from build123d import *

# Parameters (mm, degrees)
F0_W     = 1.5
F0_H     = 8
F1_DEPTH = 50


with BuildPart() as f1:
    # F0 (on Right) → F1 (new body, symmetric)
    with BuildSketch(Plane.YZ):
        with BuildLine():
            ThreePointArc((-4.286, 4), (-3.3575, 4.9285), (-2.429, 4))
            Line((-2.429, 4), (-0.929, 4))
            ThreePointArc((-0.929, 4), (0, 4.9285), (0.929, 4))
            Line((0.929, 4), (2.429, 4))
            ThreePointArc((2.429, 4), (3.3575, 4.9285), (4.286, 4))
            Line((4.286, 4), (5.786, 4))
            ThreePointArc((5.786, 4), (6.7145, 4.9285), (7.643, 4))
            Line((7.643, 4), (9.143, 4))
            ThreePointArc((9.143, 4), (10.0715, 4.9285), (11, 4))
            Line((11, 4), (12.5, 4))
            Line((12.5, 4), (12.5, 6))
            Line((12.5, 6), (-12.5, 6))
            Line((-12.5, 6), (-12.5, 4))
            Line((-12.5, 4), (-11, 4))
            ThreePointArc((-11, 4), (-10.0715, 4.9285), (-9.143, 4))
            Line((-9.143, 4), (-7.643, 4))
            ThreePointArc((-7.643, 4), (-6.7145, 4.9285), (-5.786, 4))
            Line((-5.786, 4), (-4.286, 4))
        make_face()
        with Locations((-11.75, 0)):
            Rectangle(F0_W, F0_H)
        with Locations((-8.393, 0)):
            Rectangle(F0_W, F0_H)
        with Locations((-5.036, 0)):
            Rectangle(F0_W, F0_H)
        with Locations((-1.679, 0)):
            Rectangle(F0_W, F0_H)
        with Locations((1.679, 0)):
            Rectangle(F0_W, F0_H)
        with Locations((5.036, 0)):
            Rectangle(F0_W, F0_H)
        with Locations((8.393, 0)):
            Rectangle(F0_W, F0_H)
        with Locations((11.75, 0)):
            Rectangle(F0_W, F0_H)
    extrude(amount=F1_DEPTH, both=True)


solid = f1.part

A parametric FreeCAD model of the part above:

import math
import FreeCAD as App
import Part
import Sketcher
from FreeCAD import Vector

doc = App.newDocument("Part")
body = doc.addObject("PartDesign::Body", "Body")

sketch1 = doc.addObject("Sketcher::SketchObject", "Sketch")
body.addObject(sketch1)
sketch1.AttachmentSupport = (doc.YZ_Plane, [""])
sketch1.MapMode = "FlatFace"
sketch1.addGeometry(Part.ArcOfCircle(Part.Circle(Vector(-3.4, 4, 0), Vector(0, 0, 1), 0.9), math.radians(0), math.radians(180)), False)
sketch1.addGeometry(Part.LineSegment(Vector(-2.4, 4, 0), Vector(-2.4, -4, 0)), False)
sketch1.addGeometry(Part.LineSegment(Vector(-2.4, -4, 0), Vector(-0.9, -4, 0)), False)
sketch1.addGeometry(Part.LineSegment(Vector(-0.9, -4, 0), Vector(-0.9, 4, 0)), False)
sketch1.addGeometry(Part.ArcOfCircle(Part.Circle(Vector(0, 4, 0), Vector(0, 0, 1), 0.9), math.radians(0), math.radians(180)), False)
sketch1.addGeometry(Part.LineSegment(Vector(0.9, 4, 0), Vector(0.9, -4, 0)), False)
sketch1.addGeometry(Part.LineSegment(Vector(0.9, -4, 0), Vector(2.4, -4, 0)), False)
sketch1.addGeometry(Part.LineSegment(Vector(2.4, -4, 0), Vector(2.4, 4, 0)), False)
sketch1.addGeometry(Part.ArcOfCircle(Part.Circle(Vector(3.4, 4, 0), Vector(0, 0, 1), 0.9), math.radians(0), math.radians(180)), False)
sketch1.addGeometry(Part.LineSegment(Vector(4.3, 4, 0), Vector(4.3, -4, 0)), False)
sketch1.addGeometry(Part.LineSegment(Vector(4.3, -4, 0), Vector(5.8, -4, 0)), False)
sketch1.addGeometry(Part.LineSegment(Vector(5.8, -4, 0), Vector(5.8, 4, 0)), False)
sketch1.addGeometry(Part.ArcOfCircle(Part.Circle(Vector(6.7, 4, 0), Vector(0, 0, 1), 0.9), math.radians(0), math.radians(180)), False)
sketch1.addGeometry(Part.LineSegment(Vector(7.6, 4, 0), Vector(7.6, -4, 0)), False)
sketch1.addGeometry(Part.LineSegment(Vector(7.6, -4, 0), Vector(9.1, -4, 0)), False)
sketch1.addGeometry(Part.LineSegment(Vector(9.1, -4, 0), Vector(9.1, 4, 0)), False)
sketch1.addGeometry(Part.ArcOfCircle(Part.Circle(Vector(10.1, 4, 0), Vector(0, 0, 1), 0.9), math.radians(0), math.radians(180)), False)
sketch1.addGeometry(Part.LineSegment(Vector(11, 4, 0), Vector(11, -4, 0)), False)
sketch1.addGeometry(Part.LineSegment(Vector(11, -4, 0), Vector(12.5, -4, 0)), False)
sketch1.addGeometry(Part.LineSegment(Vector(12.5, -4, 0), Vector(12.5, 6, 0)), False)
sketch1.addGeometry(Part.LineSegment(Vector(12.5, 6, 0), Vector(-12.5, 6, 0)), False)
sketch1.addGeometry(Part.LineSegment(Vector(-12.5, 6, 0), Vector(-12.5, -4, 0)), False)
sketch1.addGeometry(Part.LineSegment(Vector(-12.5, -4, 0), Vector(-11, -4, 0)), False)
sketch1.addGeometry(Part.LineSegment(Vector(-11, -4, 0), Vector(-11, 4, 0)), False)
sketch1.addGeometry(Part.ArcOfCircle(Part.Circle(Vector(-10.1, 4, 0), Vector(0, 0, 1), 0.9), math.radians(0), math.radians(180)), False)
sketch1.addGeometry(Part.LineSegment(Vector(-9.1, 4, 0), Vector(-9.1, -4, 0)), False)
sketch1.addGeometry(Part.LineSegment(Vector(-9.1, -4, 0), Vector(-7.6, -4, 0)), False)
sketch1.addGeometry(Part.LineSegment(Vector(-7.6, -4, 0), Vector(-7.6, 4, 0)), False)
sketch1.addGeometry(Part.ArcOfCircle(Part.Circle(Vector(-6.7, 4, 0), Vector(0, 0, 1), 0.9), math.radians(0), math.radians(180)), False)
sketch1.addGeometry(Part.LineSegment(Vector(-5.8, 4, 0), Vector(-5.8, -4, 0)), False)
sketch1.addGeometry(Part.LineSegment(Vector(-5.8, -4, 0), Vector(-4.3, -4, 0)), False)
sketch1.addGeometry(Part.LineSegment(Vector(-4.3, -4, 0), Vector(-4.3, 4, 0)), False)
sketch1.addConstraint(Sketcher.Constraint("Tangent", 0, 1, 1, 1))
sketch1.addConstraint(Sketcher.Constraint("Coincident", 1, 2, 2, 1))
sketch1.addConstraint(Sketcher.Constraint("Coincident", 2, 2, 3, 1))
sketch1.addConstraint(Sketcher.Constraint("Coincident", 3, 2, 4, 2))
sketch1.addConstraint(Sketcher.Constraint("Coincident", 4, 1, 5, 1))
sketch1.addConstraint(Sketcher.Constraint("Coincident", 5, 2, 6, 1))
sketch1.addConstraint(Sketcher.Constraint("Coincident", 6, 2, 7, 1))
sketch1.addConstraint(Sketcher.Constraint("Tangent", 7, 2, 8, 2))
sketch1.addConstraint(Sketcher.Constraint("Tangent", 8, 1, 9, 1))
sketch1.addConstraint(Sketcher.Constraint("Coincident", 9, 2, 10, 1))
sketch1.addConstraint(Sketcher.Constraint("Coincident", 10, 2, 11, 1))
sketch1.addConstraint(Sketcher.Constraint("Tangent", 11, 2, 12, 2))
sketch1.addConstraint(Sketcher.Constraint("Tangent", 12, 1, 13, 1))
sketch1.addConstraint(Sketcher.Constraint("Coincident", 13, 2, 14, 1))
sketch1.addConstraint(Sketcher.Constraint("Coincident", 14, 2, 15, 1))
sketch1.addConstraint(Sketcher.Constraint("Tangent", 15, 2, 16, 2))
sketch1.addConstraint(Sketcher.Constraint("Tangent", 16, 1, 17, 1))
sketch1.addConstraint(Sketcher.Constraint("Coincident", 17, 2, 18, 1))
sketch1.addConstraint(Sketcher.Constraint("Coincident", 18, 2, 19, 1))
sketch1.addConstraint(Sketcher.Constraint("Coincident", 19, 2, 20, 1))
sketch1.addConstraint(Sketcher.Constraint("Coincident", 20, 2, 21, 1))
sketch1.addConstraint(Sketcher.Constraint("Coincident", 21, 2, 22, 1))
sketch1.addConstraint(Sketcher.Constraint("Coincident", 22, 2, 23, 1))
sketch1.addConstraint(Sketcher.Constraint("Tangent", 23, 2, 24, 2))
sketch1.addConstraint(Sketcher.Constraint("Tangent", 24, 1, 25, 1))
sketch1.addConstraint(Sketcher.Constraint("Coincident", 25, 2, 26, 1))
sketch1.addConstraint(Sketcher.Constraint("Coincident", 26, 2, 27, 1))
sketch1.addConstraint(Sketcher.Constraint("Tangent", 27, 2, 28, 2))
sketch1.addConstraint(Sketcher.Constraint("Tangent", 28, 1, 29, 1))
sketch1.addConstraint(Sketcher.Constraint("Coincident", 29, 2, 30, 1))
sketch1.addConstraint(Sketcher.Constraint("Coincident", 30, 2, 31, 1))
sketch1.addConstraint(Sketcher.Constraint("Tangent", 31, 2, 0, 2))
sketch1.addConstraint(Sketcher.Constraint("Vertical", 1))
sketch1.addConstraint(Sketcher.Constraint("Horizontal", 2))
sketch1.addConstraint(Sketcher.Constraint("Vertical", 3))
sketch1.addConstraint(Sketcher.Constraint("Vertical", 5))
sketch1.addConstraint(Sketcher.Constraint("Horizontal", 6))
sketch1.addConstraint(Sketcher.Constraint("Vertical", 7))
sketch1.addConstraint(Sketcher.Constraint("Vertical", 9))
sketch1.addConstraint(Sketcher.Constraint("Horizontal", 10))
sketch1.addConstraint(Sketcher.Constraint("Vertical", 11))
sketch1.addConstraint(Sketcher.Constraint("Vertical", 13))
sketch1.addConstraint(Sketcher.Constraint("Horizontal", 14))
sketch1.addConstraint(Sketcher.Constraint("Vertical", 15))
sketch1.addConstraint(Sketcher.Constraint("Vertical", 17))
sketch1.addConstraint(Sketcher.Constraint("Horizontal", 18))
sketch1.addConstraint(Sketcher.Constraint("Vertical", 19))
sketch1.addConstraint(Sketcher.Constraint("Horizontal", 20))
sketch1.addConstraint(Sketcher.Constraint("Vertical", 21))
sketch1.addConstraint(Sketcher.Constraint("Horizontal", 22))
sketch1.addConstraint(Sketcher.Constraint("Vertical", 23))
sketch1.addConstraint(Sketcher.Constraint("Vertical", 25))
sketch1.addConstraint(Sketcher.Constraint("Horizontal", 26))
sketch1.addConstraint(Sketcher.Constraint("Vertical", 27))
sketch1.addConstraint(Sketcher.Constraint("Vertical", 29))
sketch1.addConstraint(Sketcher.Constraint("Horizontal", 30))
sketch1.addConstraint(Sketcher.Constraint("Vertical", 31))
sketch1.addConstraint(Sketcher.Constraint("Equal", 0, 8))
sketch1.addConstraint(Sketcher.Constraint("Equal", 8, 12))
sketch1.addConstraint(Sketcher.Constraint("Equal", 12, 16))
sketch1.addConstraint(Sketcher.Constraint("Equal", 16, 24))
sketch1.addConstraint(Sketcher.Constraint("Equal", 24, 28))
sketch1.addConstraint(Sketcher.Constraint("Symmetric", 2, 2, 4, 1, -1, 1))
sketch1.addConstraint(Sketcher.Constraint("Symmetric", 0, 1, 6, 2, -1, 1))
sketch1.addConstraint(Sketcher.Constraint("Symmetric", 16, 1, 22, 2, -1, 1))
sketch1.addConstraint(Sketcher.Constraint("Symmetric", 12, 1, 26, 2, -1, 1))
sketch1.addConstraint(Sketcher.Constraint("Symmetric", 18, 2, 21, 2, -2))
sketch1.addConstraint(Sketcher.Constraint("Horizontal", 0, 3, 8, 3))
sketch1.addConstraint(Sketcher.Constraint("Horizontal", 8, 3, 12, 3))
sketch1.addConstraint(Sketcher.Constraint("Horizontal", 12, 3, 16, 3))
sketch1.addConstraint(Sketcher.Constraint("Horizontal", 16, 3, 24, 3))
sketch1.addConstraint(Sketcher.Constraint("Horizontal", 24, 3, 28, 3))
sketch1.addConstraint(Sketcher.Constraint("Horizontal", 0, 1, 3, 2))
sketch1.addConstraint(Sketcher.Constraint("Horizontal", 3, 2, 4, 1))
sketch1.addConstraint(Sketcher.Constraint("Horizontal", 6, 2, 9, 2))
sketch1.addConstraint(Sketcher.Constraint("Horizontal", 10, 2, 13, 2))
sketch1.addConstraint(Sketcher.Constraint("Horizontal", 26, 2, 29, 2))
sketch1.addConstraint(Sketcher.Constraint("Equal", 6, 10))
sketch1.addConstraint(Sketcher.Constraint("Equal", 10, 14))
sketch1.addConstraint(Sketcher.Constraint("Equal", 14, 18))
sketch1.addConstraint(Sketcher.Constraint("DistanceX", 20, 2, 20, 1, 25.0))
sketch1.addConstraint(Sketcher.Constraint("DistanceY", 1, 2, 1, 1, 8.0))
sketch1.addConstraint(Sketcher.Constraint("DistanceY", 19, 1, 19, 2, 10.0))
sketch1.addConstraint(Sketcher.Constraint("DistanceX", 2, 1, 2, 2, 1.5))
sketch1.addConstraint(Sketcher.Constraint("Radius", 4, 0.929))
sketch1.addConstraint(Sketcher.Constraint("DistanceY", -1, 1, 4, 3, 3.9995))
pad1 = doc.addObject("PartDesign::Pad", "Pad")
body.addObject(pad1)
pad1.Profile = sketch1
pad1.Length = 100
pad1.Midplane = True

doc.recompute()
